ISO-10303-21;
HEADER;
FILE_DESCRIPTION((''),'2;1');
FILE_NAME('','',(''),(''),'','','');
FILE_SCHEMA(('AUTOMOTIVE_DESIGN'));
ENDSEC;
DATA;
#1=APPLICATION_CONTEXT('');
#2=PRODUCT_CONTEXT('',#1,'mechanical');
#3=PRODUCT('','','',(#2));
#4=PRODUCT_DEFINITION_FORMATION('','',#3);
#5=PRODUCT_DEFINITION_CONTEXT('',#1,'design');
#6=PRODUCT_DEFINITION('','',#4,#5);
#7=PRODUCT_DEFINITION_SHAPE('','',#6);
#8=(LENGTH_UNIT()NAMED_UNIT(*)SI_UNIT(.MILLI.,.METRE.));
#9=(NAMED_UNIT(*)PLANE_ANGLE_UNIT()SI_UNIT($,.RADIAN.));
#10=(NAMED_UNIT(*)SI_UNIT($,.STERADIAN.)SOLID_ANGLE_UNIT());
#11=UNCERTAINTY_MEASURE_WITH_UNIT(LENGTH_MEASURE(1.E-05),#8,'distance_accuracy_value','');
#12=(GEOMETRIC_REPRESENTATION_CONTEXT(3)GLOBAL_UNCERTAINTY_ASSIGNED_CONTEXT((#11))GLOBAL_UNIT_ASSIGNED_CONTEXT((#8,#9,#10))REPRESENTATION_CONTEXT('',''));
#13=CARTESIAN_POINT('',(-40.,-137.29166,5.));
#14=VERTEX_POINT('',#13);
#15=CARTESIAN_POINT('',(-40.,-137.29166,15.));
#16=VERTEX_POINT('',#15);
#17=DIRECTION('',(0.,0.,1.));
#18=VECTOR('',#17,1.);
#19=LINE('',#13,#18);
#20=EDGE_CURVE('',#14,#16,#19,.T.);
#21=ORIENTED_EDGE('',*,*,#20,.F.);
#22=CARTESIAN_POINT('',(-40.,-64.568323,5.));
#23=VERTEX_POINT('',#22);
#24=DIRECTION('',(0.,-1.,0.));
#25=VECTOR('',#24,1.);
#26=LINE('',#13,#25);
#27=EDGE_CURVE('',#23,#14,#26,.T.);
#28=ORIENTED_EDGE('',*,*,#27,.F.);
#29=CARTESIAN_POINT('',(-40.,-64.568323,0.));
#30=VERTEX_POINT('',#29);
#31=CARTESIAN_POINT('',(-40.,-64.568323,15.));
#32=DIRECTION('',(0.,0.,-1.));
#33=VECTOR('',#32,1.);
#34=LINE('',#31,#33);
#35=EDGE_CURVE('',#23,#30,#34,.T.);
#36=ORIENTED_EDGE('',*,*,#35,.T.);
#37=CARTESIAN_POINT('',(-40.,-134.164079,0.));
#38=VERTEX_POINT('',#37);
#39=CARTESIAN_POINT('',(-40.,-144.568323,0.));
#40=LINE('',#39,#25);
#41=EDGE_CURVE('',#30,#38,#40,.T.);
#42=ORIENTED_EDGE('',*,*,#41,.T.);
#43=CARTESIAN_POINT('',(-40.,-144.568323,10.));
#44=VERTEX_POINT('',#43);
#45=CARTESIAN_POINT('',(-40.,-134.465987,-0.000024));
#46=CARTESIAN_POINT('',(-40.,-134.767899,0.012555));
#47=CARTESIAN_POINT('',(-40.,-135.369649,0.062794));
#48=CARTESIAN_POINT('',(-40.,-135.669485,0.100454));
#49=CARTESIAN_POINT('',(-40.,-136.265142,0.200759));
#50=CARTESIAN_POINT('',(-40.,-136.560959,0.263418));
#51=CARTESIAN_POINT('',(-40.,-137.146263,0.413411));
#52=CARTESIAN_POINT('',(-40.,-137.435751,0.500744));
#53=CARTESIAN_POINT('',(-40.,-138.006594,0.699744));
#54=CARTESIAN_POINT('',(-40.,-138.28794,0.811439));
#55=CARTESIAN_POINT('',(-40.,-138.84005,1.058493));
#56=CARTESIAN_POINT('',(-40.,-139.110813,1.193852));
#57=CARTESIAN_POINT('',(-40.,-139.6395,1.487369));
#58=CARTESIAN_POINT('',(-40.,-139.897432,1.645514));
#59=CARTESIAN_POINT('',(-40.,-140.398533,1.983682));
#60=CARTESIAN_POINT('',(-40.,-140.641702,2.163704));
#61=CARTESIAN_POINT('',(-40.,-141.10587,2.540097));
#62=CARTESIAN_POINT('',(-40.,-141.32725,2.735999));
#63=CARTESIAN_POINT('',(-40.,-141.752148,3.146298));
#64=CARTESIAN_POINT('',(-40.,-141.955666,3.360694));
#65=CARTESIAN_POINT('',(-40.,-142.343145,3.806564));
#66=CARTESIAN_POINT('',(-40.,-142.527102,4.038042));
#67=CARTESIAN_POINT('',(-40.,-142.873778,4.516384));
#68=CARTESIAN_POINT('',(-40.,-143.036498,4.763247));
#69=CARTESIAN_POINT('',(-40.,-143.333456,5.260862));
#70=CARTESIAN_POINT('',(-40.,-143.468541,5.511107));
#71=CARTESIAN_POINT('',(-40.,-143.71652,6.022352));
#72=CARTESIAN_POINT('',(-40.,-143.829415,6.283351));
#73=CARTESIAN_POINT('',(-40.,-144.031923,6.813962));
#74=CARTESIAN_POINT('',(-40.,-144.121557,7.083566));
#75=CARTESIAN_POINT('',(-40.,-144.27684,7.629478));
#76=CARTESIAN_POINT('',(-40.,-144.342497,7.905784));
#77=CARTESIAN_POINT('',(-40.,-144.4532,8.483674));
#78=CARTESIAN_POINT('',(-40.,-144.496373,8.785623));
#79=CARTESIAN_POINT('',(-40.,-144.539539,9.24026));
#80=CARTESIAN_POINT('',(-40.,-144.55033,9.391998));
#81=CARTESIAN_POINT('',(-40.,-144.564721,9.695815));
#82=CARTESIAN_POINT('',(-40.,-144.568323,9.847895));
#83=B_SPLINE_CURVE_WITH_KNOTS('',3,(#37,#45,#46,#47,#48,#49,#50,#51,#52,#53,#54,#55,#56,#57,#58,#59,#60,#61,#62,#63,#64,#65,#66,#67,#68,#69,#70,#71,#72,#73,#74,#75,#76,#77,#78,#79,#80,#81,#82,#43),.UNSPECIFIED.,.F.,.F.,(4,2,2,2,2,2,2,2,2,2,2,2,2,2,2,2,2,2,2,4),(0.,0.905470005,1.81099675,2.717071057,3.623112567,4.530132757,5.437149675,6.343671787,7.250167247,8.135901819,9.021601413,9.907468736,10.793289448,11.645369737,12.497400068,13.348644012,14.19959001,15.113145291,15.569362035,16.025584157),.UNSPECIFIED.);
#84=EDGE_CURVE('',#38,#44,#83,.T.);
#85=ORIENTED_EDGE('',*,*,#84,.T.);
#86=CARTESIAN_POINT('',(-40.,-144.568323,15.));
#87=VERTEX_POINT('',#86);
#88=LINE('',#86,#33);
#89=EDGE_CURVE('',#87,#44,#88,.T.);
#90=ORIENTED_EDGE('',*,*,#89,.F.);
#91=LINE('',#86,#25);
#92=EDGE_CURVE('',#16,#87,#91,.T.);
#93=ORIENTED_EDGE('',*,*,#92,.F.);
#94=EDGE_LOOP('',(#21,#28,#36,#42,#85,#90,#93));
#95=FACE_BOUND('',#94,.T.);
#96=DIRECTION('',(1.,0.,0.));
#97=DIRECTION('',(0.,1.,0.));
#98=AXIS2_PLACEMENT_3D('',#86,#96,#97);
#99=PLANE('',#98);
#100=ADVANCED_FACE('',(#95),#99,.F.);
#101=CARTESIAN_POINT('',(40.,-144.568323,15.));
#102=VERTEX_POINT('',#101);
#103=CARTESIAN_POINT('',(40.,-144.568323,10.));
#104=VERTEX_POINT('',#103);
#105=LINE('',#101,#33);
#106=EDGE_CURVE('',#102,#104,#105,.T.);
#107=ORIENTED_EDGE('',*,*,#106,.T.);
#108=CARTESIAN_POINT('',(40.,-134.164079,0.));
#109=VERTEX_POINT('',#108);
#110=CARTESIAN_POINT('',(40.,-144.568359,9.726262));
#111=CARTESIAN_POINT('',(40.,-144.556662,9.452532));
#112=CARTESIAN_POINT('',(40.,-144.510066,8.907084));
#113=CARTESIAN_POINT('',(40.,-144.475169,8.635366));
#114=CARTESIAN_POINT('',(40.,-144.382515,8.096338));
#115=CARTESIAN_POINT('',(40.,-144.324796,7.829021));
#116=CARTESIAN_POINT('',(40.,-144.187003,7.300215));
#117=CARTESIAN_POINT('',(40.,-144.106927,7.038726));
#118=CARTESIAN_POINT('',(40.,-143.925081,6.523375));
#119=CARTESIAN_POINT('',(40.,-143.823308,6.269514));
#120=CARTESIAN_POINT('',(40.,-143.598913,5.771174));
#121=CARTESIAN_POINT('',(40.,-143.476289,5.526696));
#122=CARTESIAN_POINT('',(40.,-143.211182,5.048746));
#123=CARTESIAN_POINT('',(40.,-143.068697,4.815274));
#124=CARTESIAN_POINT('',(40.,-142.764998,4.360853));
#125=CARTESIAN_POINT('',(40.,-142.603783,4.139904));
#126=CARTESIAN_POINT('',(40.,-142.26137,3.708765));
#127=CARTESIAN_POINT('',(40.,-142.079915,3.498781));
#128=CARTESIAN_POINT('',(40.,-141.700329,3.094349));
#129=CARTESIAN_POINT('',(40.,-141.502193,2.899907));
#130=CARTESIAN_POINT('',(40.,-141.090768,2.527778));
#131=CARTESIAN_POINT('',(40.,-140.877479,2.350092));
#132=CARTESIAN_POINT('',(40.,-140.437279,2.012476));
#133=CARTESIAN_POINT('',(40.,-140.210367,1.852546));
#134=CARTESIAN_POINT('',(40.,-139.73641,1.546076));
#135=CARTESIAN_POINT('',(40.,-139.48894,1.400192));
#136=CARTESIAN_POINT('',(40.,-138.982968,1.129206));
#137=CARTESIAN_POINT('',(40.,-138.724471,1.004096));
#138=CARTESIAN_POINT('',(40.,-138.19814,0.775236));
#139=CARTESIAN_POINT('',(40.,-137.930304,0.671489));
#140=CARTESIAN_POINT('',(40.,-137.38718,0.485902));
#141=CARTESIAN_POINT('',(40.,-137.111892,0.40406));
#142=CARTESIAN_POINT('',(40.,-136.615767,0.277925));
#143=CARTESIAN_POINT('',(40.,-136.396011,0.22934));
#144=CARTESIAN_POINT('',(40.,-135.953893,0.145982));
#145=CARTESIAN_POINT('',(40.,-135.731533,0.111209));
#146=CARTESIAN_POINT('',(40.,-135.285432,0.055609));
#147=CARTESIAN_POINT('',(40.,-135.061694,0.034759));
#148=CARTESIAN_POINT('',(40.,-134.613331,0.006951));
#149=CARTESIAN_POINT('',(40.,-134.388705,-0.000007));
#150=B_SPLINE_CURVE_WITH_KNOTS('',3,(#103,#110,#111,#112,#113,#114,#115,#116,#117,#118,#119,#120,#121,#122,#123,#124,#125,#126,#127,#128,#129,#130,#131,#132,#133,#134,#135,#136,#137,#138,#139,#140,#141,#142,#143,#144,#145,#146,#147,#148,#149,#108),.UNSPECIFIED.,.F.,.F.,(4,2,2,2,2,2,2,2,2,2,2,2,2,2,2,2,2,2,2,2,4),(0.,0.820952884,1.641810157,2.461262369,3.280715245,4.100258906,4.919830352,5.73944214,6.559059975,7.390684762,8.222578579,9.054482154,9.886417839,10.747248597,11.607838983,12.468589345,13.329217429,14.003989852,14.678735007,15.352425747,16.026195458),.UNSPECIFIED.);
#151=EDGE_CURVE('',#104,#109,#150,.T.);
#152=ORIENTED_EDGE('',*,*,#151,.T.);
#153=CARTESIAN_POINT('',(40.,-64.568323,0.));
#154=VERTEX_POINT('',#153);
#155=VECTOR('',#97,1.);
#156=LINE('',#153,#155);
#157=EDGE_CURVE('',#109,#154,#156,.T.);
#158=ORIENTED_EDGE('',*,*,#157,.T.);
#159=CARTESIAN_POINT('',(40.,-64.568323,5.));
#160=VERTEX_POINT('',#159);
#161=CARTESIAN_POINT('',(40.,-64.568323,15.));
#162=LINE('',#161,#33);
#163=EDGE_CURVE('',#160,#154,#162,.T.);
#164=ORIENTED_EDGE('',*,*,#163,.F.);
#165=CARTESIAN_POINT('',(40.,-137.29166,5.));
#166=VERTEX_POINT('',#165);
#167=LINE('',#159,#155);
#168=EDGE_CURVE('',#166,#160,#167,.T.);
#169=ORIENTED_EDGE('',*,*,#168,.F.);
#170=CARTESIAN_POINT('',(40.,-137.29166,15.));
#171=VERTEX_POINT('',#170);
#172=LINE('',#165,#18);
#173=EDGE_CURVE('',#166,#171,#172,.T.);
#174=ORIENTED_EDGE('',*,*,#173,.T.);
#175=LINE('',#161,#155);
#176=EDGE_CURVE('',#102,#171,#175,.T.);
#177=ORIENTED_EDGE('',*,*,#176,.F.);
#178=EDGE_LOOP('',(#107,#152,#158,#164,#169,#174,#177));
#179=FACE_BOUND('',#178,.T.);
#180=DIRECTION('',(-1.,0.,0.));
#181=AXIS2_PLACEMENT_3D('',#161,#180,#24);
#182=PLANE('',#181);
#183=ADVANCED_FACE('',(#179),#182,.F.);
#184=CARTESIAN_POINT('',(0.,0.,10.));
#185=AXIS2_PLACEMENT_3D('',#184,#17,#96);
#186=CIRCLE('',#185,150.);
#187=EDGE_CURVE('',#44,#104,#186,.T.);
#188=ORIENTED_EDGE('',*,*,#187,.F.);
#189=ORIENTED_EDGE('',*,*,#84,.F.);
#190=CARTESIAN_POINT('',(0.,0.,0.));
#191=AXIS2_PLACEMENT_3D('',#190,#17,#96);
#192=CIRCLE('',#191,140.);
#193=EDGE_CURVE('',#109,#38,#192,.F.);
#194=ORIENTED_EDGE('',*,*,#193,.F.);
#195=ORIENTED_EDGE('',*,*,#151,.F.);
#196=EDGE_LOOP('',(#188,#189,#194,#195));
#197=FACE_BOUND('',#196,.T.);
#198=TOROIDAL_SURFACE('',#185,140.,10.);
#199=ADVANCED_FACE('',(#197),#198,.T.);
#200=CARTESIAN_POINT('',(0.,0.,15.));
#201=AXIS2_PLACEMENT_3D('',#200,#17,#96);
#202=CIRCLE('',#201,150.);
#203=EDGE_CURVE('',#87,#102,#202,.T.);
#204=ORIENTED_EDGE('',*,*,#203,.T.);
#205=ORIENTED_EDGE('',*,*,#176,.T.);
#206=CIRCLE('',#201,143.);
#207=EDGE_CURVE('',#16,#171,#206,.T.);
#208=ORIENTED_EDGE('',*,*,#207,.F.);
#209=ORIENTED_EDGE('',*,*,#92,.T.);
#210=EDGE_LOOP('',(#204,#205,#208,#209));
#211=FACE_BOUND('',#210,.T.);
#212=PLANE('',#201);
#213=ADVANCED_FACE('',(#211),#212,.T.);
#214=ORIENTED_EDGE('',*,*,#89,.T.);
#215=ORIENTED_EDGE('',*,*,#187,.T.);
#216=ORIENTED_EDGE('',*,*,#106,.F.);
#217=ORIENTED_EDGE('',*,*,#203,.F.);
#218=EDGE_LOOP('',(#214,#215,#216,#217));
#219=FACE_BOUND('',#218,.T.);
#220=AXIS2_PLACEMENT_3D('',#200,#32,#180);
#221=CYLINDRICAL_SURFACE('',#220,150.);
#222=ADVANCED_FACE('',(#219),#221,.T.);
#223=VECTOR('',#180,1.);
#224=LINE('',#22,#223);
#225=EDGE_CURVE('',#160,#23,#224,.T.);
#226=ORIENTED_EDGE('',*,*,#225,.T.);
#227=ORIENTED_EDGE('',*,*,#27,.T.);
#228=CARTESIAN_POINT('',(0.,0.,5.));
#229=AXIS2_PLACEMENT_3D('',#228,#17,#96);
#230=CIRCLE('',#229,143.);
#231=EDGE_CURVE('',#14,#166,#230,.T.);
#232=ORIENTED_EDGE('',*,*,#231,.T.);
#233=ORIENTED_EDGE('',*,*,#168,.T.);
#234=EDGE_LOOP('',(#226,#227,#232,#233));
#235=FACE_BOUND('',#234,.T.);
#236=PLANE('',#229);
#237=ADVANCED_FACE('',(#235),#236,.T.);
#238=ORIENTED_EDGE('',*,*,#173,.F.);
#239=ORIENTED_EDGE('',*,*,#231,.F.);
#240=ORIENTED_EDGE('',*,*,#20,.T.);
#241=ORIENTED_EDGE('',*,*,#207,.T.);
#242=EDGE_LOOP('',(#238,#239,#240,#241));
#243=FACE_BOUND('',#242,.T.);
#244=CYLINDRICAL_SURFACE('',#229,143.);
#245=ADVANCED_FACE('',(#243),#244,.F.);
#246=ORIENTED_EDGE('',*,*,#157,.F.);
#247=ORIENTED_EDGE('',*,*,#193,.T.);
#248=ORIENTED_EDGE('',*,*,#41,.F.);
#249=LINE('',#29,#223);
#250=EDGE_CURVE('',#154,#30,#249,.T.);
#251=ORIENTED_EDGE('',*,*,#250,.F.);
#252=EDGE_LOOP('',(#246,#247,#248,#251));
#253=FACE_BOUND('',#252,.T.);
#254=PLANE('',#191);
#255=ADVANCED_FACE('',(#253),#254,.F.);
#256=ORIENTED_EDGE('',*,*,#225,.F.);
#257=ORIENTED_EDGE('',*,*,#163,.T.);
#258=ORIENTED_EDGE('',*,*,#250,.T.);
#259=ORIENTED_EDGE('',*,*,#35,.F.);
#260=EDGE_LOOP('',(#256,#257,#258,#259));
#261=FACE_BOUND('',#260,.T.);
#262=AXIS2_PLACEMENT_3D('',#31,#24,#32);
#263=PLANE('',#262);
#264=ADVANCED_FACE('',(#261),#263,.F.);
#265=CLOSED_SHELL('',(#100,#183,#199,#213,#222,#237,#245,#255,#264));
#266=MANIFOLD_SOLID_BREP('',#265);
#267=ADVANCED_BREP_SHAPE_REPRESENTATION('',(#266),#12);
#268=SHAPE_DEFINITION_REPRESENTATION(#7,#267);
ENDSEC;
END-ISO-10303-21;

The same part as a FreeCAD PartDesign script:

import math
import FreeCAD as App
import Part
import Sketcher

V = App.Vector
Q = App.Units.Quantity


def edges_at(feature, points):
    """Names of the edges that pass closest to the given points."""
    edges = feature.Shape.Edges
    near = lambda p: min(range(len(edges)), key=lambda i: edges[i].distToShape(Part.Vertex(*p))[0])
    return sorted({f"Edge{near(p) + 1}" for p in points})

doc = App.newDocument("Part")
body = doc.addObject("PartDesign::Body", "Body")

# Sketch on XY plane
sketch1 = body.newObject("Sketcher::SketchObject", "Sketch")
sketch1.AttachmentSupport = (doc.getObject("XY_Plane"), [""])
sketch1.MapMode = "FlatFace"
sketch1.addGeometry([
    Part.LineSegment(V(-40, -64.568323, 0), V(-40, -144.568323, 0)),
    Part.ArcOfCircle(Part.Circle(V(0, 0, 0), V(0, 0, 1), 150), math.radians(-105.46601), math.radians(-74.53399)),
    Part.LineSegment(V(40, -144.568323, 0), V(40, -64.568323, 0)),
    Part.LineSegment(V(40, -64.568323, 0), V(-40, -64.568323, 0)),
], False)
sketch1.addConstraint([
    Sketcher.Constraint("Coincident", 0, 2, 1, 1),
    Sketcher.Constraint("Coincident", 1, 2, 2, 1),
    Sketcher.Constraint("Coincident", 2, 2, 3, 1),
    Sketcher.Constraint("Coincident", 3, 2, 0, 1),
    Sketcher.Constraint("Vertical", 0),
    Sketcher.Constraint("Vertical", 2),
    Sketcher.Constraint("Horizontal", 3),
    Sketcher.Constraint("Coincident", 1, 3, -1, 1),
    Sketcher.Constraint("Horizontal", 0, 2, 1, 2),
    Sketcher.Constraint("Equal", 3, 0),
    Sketcher.Constraint("Radius", 1, Q("150 mm")),
    Sketcher.Constraint("DistanceX", 3, 2, 3, 1, Q("80 mm")),
])
pad1 = body.newObject("PartDesign::Pad", "Pad")
pad1.Profile = sketch1
pad1.Length = 15

# Sketch on XY plane
sketch2 = body.newObject("Sketcher::SketchObject", "Sketch001")
sketch2.AttachmentSupport = (doc.getObject("XY_Plane"), [""])
sketch2.MapMode = "FlatFace"
sketch2.AttachmentOffset = App.Placement(V(0, 0, 15), App.Rotation())
sketch2.addGeometry([
    Part.LineSegment(V(-40, -64.568323, 0), V(-40, -137.29166, 0)),
    Part.ArcOfCircle(Part.Circle(V(0, 0, 0), V(0, 0, 1), 143), math.radians(-106.243511), math.radians(-73.756489)),
    Part.LineSegment(V(40, -137.29166, 0), V(40, -64.568323, 0)),
    Part.LineSegment(V(40, -64.568323, 0), V(-40, -64.568323, 0)),
], False)
sketch2.addConstraint([
    Sketcher.Constraint("Coincident", 0, 2, 1, 1),
    Sketcher.Constraint("Coincident", 1, 2, 2, 1),
    Sketcher.Constraint("Coincident", 2, 2, 3, 1),
    Sketcher.Constraint("Coincident", 3, 2, 0, 1),
    Sketcher.Constraint("Vertical", 0),
    Sketcher.Constraint("Vertical", 2),
    Sketcher.Constraint("Horizontal", 3),
    Sketcher.Constraint("Coincident", 1, 3, -1, 1),
    Sketcher.Constraint("Horizontal", 0, 2, 1, 2),
    Sketcher.Constraint("Radius", 1, Q("143 mm")),
    Sketcher.Constraint("DistanceX", 3, 2, 3, 1, Q("80 mm")),
    Sketcher.Constraint("DistanceY", 0, 2, 0, 1, Q("72.723337 mm")),
])
pocket1 = body.newObject("PartDesign::Pocket", "Pocket")
pocket1.Profile = sketch2
pocket1.Length = 10
doc.recompute()

fillet = body.newObject("PartDesign::Fillet", "Fillet")
fillet.Base = (pocket1, edges_at(pocket1, [(0, -150, 0)]))
fillet.Radius = 10

doc.recompute()
